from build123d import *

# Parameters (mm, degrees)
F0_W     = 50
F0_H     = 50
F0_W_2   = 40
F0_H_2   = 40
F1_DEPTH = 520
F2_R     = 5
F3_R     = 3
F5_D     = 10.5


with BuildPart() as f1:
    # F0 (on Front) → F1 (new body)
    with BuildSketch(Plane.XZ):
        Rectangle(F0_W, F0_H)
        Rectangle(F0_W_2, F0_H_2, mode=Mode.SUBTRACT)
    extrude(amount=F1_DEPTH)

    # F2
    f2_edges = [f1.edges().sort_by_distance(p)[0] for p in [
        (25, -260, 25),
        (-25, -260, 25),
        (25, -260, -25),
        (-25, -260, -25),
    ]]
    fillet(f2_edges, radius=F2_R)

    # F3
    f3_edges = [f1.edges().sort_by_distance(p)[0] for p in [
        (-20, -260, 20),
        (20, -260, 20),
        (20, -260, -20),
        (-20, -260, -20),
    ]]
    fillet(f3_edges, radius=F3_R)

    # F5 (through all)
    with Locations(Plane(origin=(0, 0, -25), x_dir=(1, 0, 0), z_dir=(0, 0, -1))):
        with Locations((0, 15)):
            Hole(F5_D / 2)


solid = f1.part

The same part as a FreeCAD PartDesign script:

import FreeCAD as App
import Part
import Sketcher
Q = App.Units.Quantity


def edges_at(feature, points):
    """Names of the edges that pass closest to the given points."""
    edges = feature.Shape.Edges
    near = lambda p: min(range(len(edges)), key=lambda i: edges[i].distToShape(Part.Vertex(*p))[0])
    return sorted({f"Edge{near(p) + 1}" for p in points})

doc = App.newDocument("Part")
body = doc.addObject("PartDesign::Body", "Body")

# Sketch on XZ plane
sketch1 = body.newObject("Sketcher::SketchObject", "Sketch")
sketch1.AttachmentSupport = (doc.getObject("XZ_Plane"), [""])
sketch1.MapMode = "FlatFace"
sketch1.addGeometry([
    Part.LineSegment(App.Vector(-25, 25, 0), App.Vector(-25, -25, 0)),  # 0
    Part.LineSegment(App.Vector(-25, -25, 0), App.Vector(25, -25, 0)),  # 1
    Part.LineSegment(App.Vector(25, -25, 0), App.Vector(25, 25, 0)),  # 2
    Part.LineSegment(App.Vector(25, 25, 0), App.Vector(-25, 25, 0)),  # 3
    Part.LineSegment(App.Vector(20, -20, 0), App.Vector(-20, -20, 0)),  # 4
    Part.LineSegment(App.Vector(-20, -20, 0), App.Vector(-20, 20, 0)),  # 5
    Part.LineSegment(App.Vector(-20, 20, 0), App.Vector(20, 20, 0)),  # 6
    Part.LineSegment(App.Vector(20, 20, 0), App.Vector(20, -20, 0)),  # 7
], False)
sketch1.addConstraint([
    Sketcher.Constraint("Coincident", 0, 2, 1, 1),
    Sketcher.Constraint("Coincident", 1, 2, 2, 1),
    Sketcher.Constraint("Coincident", 2, 2, 3, 1),
    Sketcher.Constraint("Coincident", 3, 2, 0, 1),
    Sketcher.Constraint("Coincident", 4, 2, 5, 1),
    Sketcher.Constraint("Coincident", 5, 2, 6, 1),
    Sketcher.Constraint("Coincident", 6, 2, 7, 1),
    Sketcher.Constraint("Coincident", 7, 2, 4, 1),
    Sketcher.Constraint("Vertical", 0),
    Sketcher.Constraint("Horizontal", 1),
    Sketcher.Constraint("Vertical", 2),
    Sketcher.Constraint("Horizontal", 3),
    Sketcher.Constraint("Horizontal", 4),
    Sketcher.Constraint("Vertical", 5),
    Sketcher.Constraint("Horizontal", 6),
    Sketcher.Constraint("Vertical", 7),
    Sketcher.Constraint("Symmetric", 0, 2, 2, 2, -1, 1),
    Sketcher.Constraint("Symmetric", 4, 2, 6, 2, -1, 1),
    Sketcher.Constraint("Equal", 3, 0),
    Sketcher.Constraint("Equal", 6, 5),
    Sketcher.Constraint("DistanceX", 1, 1, 1, 2, Q("50 mm")),
    Sketcher.Constraint("DistanceX", 4, 2, 4, 1, Q("40 mm")),
])
pad1 = body.newObject("PartDesign::Pad", "Pad")
pad1.Profile = sketch1
pad1.Length = 520
doc.recompute()

fillet = body.newObject("PartDesign::Fillet", "Fillet")
fillet.Base = (pad1, edges_at(pad1, [
    (25, -260, 25),
    (-25, -260, 25),
    (25, -260, -25),
    (-25, -260, -25),
]))
fillet.Radius = 5
doc.recompute()

fillet2 = body.newObject("PartDesign::Fillet", "Fillet001")
fillet2.Base = (fillet, edges_at(fillet, [
    (-20, -260, 20),
    (20, -260, 20),
    (20, -260, -20),
    (-20, -260, -20),
]))
fillet2.Radius = 3

# Sketch on XY plane
sketch2 = body.newObject("Sketcher::SketchObject", "Sketch001")
sketch2.AttachmentSupport = (doc.getObject("XY_Plane"), [""])
sketch2.MapMode = "FlatFace"
sketch2.AttachmentOffset = App.Placement(App.Vector(0, 0, -25), App.Rotation())
sketch2.addGeometry(Part.Circle(App.Vector(0, -15, 0), App.Vector(0, 0, 1), 5), False)
sketch2.addConstraint([
    Sketcher.Constraint("PointOnObject", 0, 3, -2),
    Sketcher.Constraint("Diameter", 0, Q("10.5 mm")),
    Sketcher.Constraint("DistanceY", 0, 3, -1, 1, Q("15 mm")),
])
doc.recompute()
hole = body.newObject("PartDesign::Hole", "Hole")
hole.Profile = sketch2
hole.ThreadType = "None"
hole.Diameter = 10.5
hole.DepthType = "ThroughAll"
hole.Reversed = True

doc.recompute()
